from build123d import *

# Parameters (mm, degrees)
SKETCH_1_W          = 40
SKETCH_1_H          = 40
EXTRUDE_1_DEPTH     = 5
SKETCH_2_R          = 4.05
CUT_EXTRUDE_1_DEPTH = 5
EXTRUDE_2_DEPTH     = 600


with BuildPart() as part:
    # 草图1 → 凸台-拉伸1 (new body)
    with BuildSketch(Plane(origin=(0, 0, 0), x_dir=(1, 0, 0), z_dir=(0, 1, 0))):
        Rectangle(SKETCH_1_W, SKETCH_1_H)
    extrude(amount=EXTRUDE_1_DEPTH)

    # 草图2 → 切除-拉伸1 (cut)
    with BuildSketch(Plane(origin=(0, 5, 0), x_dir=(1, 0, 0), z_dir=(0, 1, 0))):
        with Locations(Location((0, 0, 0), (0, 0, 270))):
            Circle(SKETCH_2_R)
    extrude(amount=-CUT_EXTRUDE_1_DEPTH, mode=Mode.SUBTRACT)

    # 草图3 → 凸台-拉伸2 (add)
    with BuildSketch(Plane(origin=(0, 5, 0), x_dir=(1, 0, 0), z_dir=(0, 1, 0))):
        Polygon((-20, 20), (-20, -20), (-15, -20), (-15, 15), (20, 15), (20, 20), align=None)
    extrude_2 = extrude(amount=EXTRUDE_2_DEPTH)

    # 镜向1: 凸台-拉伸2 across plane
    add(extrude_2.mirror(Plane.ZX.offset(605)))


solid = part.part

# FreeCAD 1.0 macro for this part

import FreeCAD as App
import Part
import Sketcher
from FreeCAD import Vector

doc = App.newDocument("Part")
body = doc.addObject("PartDesign::Body", "Body")

sketch1 = body.newObject("Sketcher::SketchObject", "Sketch")
sketch1.AttachmentSupport = (doc.getObject("XZ_Plane"), [""])
sketch1.MapMode = "FlatFace"
sketch1.addGeometry([
    Part.LineSegment(Vector(-20, -20, 0), Vector(-20, 20, 0)),
    Part.LineSegment(Vector(-20, 20, 0), Vector(20, 20, 0)),
    Part.LineSegment(Vector(20, 20, 0), Vector(20, -20, 0)),
    Part.LineSegment(Vector(20, -20, 0), Vector(-20, -20, 0)),
], False)
sketch1.addConstraint([
    Sketcher.Constraint("Coincident", 0, 2, 1, 1),
    Sketcher.Constraint("Coincident", 1, 2, 2, 1),
    Sketcher.Constraint("Coincident", 2, 2, 3, 1),
    Sketcher.Constraint("Coincident", 3, 2, 0, 1),
    Sketcher.Constraint("Vertical", 0),
    Sketcher.Constraint("Horizontal", 1),
    Sketcher.Constraint("Vertical", 2),
    Sketcher.Constraint("Horizontal", 3),
    Sketcher.Constraint("Symmetric", 0, 2, 2, 2, -1, 1),
    Sketcher.Constraint("Equal", 3, 0),
    Sketcher.Constraint("DistanceX", 1, 1, 1, 2, 40.0),
])
pad1 = body.newObject("PartDesign::Pad", "Pad")
pad1.Profile = sketch1
pad1.Length = 5
pad1.Reversed = True

sketch2 = body.newObject("Sketcher::SketchObject", "Sketch001")
sketch2.AttachmentSupport = (doc.getObject("XZ_Plane"), [""])
sketch2.MapMode = "FlatFace"
sketch2.AttachmentOffset = App.Placement(Vector(0, 0, -5), App.Rotation())
sketch2.addGeometry(Part.Circle(Vector(0, 0, 0), Vector(0, 0, 1), 4.05), False)
sketch2.addConstraint([
    Sketcher.Constraint("Coincident", 0, 3, -1, 1),
    Sketcher.Constraint("Diameter", 0, 8.1),
])
pocket1 = body.newObject("PartDesign::Pocket", "Pocket")
pocket1.Profile = sketch2
pocket1.Length = 5
pocket1.Reversed = True

sketch3 = body.newObject("Sketcher::SketchObject", "Sketch002")
sketch3.AttachmentSupport = (doc.getObject("XZ_Plane"), [""])
sketch3.MapMode = "FlatFace"
sketch3.AttachmentOffset = App.Placement(Vector(0, 0, -5), App.Rotation())
sketch3.addGeometry([
    Part.LineSegment(Vector(-20, -20, 0), Vector(-20, 20, 0)),
    Part.LineSegment(Vector(-20, 20, 0), Vector(-15, 20, 0)),
    Part.LineSegment(Vector(-15, 20, 0), Vector(-15, -15, 0)),
    Part.LineSegment(Vector(-15, -15, 0), Vector(20, -15, 0)),
    Part.LineSegment(Vector(20, -15, 0), Vector(20, -20, 0)),
    Part.LineSegment(Vector(20, -20, 0), Vector(-20, -20, 0)),
], False)
sketch3.addConstraint([
    Sketcher.Constraint("Coincident", 0, 2, 1, 1),
    Sketcher.Constraint("Coincident", 1, 2, 2, 1),
    Sketcher.Constraint("Coincident", 2, 2, 3, 1),
    Sketcher.Constraint("Coincident", 3, 2, 4, 1),
    Sketcher.Constraint("Coincident", 4, 2, 5, 1),
    Sketcher.Constraint("Coincident", 5, 2, 0, 1),
    Sketcher.Constraint("Vertical", 0),
    Sketcher.Constraint("Horizontal", 1),
    Sketcher.Constraint("Vertical", 2),
    Sketcher.Constraint("Horizontal", 3),
    Sketcher.Constraint("Vertical", 4),
    Sketcher.Constraint("Horizontal", 5),
    Sketcher.Constraint("Symmetric", 0, 2, 4, 2, -1, 1),
    Sketcher.Constraint("Equal", 5, 0),
    Sketcher.Constraint("Equal", 3, 2),
    Sketcher.Constraint("DistanceX", 1, 1, 1, 2, 5.0),
    Sketcher.Constraint("DistanceX", 3, 1, 3, 2, 35.0),
])
pad2 = body.newObject("PartDesign::Pad", "Pad001")
pad2.Profile = sketch3
pad2.Length = 600
pad2.Reversed = True
doc.recompute()

datumplane = body.newObject("PartDesign::Plane", "DatumPlane")
datumplane.AttachmentSupport = (doc.getObject("XZ_Plane"), [""])
datumplane.MapMode = "FlatFace"
datumplane.AttachmentOffset = App.Placement(Vector(0, 0, -605), App.Rotation())
mirrored = body.newObject("PartDesign::Mirrored", "Mirrored")
mirrored.Originals = [pad2]
mirrored.MirrorPlane = (datumplane, [""])
body.Tip = mirrored

doc.recompute()
